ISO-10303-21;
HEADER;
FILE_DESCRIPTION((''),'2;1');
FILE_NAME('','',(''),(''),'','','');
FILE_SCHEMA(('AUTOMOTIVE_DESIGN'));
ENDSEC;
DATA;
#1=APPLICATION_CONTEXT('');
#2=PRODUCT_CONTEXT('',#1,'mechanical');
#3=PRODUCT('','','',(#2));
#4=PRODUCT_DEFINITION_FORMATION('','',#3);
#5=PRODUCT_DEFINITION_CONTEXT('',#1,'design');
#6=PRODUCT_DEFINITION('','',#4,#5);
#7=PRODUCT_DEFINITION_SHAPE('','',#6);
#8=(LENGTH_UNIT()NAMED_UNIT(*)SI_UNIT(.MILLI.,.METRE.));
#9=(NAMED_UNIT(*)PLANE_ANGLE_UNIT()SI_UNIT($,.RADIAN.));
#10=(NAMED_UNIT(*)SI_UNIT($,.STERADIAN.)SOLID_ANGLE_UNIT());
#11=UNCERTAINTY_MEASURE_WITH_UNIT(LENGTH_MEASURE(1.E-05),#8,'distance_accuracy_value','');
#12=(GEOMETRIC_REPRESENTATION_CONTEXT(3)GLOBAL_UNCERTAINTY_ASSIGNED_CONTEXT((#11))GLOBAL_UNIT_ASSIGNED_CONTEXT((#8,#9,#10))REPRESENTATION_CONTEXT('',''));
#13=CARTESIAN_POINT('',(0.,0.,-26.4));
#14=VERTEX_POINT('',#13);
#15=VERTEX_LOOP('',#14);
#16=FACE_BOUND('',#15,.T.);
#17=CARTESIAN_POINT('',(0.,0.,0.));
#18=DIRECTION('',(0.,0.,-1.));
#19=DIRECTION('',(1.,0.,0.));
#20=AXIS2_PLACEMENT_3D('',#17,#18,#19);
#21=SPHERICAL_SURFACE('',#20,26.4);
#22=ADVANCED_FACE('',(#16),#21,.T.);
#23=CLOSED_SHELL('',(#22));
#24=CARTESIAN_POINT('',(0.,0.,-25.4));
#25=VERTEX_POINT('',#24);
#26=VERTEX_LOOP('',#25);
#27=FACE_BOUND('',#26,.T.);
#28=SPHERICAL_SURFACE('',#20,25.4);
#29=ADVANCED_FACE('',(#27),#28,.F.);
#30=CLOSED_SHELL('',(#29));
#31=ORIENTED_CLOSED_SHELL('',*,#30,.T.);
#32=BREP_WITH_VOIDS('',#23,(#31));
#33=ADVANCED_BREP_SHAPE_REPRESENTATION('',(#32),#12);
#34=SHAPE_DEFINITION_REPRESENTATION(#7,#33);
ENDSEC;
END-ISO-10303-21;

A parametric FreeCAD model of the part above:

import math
import FreeCAD as App
import Part
import Sketcher

V = App.Vector
Q = App.Units.Quantity

doc = App.newDocument("Part")
body = doc.addObject("PartDesign::Body", "Body")

# Sketch on XZ plane
sketch1 = body.newObject("Sketcher::SketchObject", "Sketch")
sketch1.AttachmentSupport = (doc.getObject("XZ_Plane"), [""])
sketch1.MapMode = "FlatFace"
sketch1.addGeometry([
    Part.ArcOfCircle(Part.Circle(V(0, 0, 0), V(0, 0, 1), 25.4), math.radians(90), math.radians(270)),
    Part.LineSegment(V(0, -25.4, 0), V(0, -26.4, 0)),
    Part.ArcOfCircle(Part.Circle(V(0, 0, 0), V(0, 0, 1), 26.4), math.radians(90), math.radians(270)),
    Part.LineSegment(V(0, 26.4, 0), V(0, 25.4, 0)),
], False)
sketch1.addConstraint([
    Sketcher.Constraint("Coincident", 0, 2, 1, 1),
    Sketcher.Constraint("Coincident", 1, 2, 2, 2),
    Sketcher.Constraint("Coincident", 2, 1, 3, 1),
    Sketcher.Constraint("Coincident", 3, 2, 0, 1),
    Sketcher.Constraint("Vertical", 1),
    Sketcher.Constraint("Vertical", 3),
    Sketcher.Constraint("Coincident", 0, 3, -1, 1),
    Sketcher.Constraint("Coincident", 2, 3, -1, 1),
    Sketcher.Constraint("PointOnObject", 0, 2, -2),
    Sketcher.Constraint("PointOnObject", 2, 1, -2),
    Sketcher.Constraint("Radius", 0, Q("25.4 mm")),
    Sketcher.Constraint("Radius", 2, Q("26.4 mm")),
])
revolution = body.newObject("PartDesign::Revolution", "Revolution")
revolution.Profile = sketch1
revolution.ReferenceAxis = (sketch1, ["V_Axis"])
revolution.Angle = 360

doc.recompute()
